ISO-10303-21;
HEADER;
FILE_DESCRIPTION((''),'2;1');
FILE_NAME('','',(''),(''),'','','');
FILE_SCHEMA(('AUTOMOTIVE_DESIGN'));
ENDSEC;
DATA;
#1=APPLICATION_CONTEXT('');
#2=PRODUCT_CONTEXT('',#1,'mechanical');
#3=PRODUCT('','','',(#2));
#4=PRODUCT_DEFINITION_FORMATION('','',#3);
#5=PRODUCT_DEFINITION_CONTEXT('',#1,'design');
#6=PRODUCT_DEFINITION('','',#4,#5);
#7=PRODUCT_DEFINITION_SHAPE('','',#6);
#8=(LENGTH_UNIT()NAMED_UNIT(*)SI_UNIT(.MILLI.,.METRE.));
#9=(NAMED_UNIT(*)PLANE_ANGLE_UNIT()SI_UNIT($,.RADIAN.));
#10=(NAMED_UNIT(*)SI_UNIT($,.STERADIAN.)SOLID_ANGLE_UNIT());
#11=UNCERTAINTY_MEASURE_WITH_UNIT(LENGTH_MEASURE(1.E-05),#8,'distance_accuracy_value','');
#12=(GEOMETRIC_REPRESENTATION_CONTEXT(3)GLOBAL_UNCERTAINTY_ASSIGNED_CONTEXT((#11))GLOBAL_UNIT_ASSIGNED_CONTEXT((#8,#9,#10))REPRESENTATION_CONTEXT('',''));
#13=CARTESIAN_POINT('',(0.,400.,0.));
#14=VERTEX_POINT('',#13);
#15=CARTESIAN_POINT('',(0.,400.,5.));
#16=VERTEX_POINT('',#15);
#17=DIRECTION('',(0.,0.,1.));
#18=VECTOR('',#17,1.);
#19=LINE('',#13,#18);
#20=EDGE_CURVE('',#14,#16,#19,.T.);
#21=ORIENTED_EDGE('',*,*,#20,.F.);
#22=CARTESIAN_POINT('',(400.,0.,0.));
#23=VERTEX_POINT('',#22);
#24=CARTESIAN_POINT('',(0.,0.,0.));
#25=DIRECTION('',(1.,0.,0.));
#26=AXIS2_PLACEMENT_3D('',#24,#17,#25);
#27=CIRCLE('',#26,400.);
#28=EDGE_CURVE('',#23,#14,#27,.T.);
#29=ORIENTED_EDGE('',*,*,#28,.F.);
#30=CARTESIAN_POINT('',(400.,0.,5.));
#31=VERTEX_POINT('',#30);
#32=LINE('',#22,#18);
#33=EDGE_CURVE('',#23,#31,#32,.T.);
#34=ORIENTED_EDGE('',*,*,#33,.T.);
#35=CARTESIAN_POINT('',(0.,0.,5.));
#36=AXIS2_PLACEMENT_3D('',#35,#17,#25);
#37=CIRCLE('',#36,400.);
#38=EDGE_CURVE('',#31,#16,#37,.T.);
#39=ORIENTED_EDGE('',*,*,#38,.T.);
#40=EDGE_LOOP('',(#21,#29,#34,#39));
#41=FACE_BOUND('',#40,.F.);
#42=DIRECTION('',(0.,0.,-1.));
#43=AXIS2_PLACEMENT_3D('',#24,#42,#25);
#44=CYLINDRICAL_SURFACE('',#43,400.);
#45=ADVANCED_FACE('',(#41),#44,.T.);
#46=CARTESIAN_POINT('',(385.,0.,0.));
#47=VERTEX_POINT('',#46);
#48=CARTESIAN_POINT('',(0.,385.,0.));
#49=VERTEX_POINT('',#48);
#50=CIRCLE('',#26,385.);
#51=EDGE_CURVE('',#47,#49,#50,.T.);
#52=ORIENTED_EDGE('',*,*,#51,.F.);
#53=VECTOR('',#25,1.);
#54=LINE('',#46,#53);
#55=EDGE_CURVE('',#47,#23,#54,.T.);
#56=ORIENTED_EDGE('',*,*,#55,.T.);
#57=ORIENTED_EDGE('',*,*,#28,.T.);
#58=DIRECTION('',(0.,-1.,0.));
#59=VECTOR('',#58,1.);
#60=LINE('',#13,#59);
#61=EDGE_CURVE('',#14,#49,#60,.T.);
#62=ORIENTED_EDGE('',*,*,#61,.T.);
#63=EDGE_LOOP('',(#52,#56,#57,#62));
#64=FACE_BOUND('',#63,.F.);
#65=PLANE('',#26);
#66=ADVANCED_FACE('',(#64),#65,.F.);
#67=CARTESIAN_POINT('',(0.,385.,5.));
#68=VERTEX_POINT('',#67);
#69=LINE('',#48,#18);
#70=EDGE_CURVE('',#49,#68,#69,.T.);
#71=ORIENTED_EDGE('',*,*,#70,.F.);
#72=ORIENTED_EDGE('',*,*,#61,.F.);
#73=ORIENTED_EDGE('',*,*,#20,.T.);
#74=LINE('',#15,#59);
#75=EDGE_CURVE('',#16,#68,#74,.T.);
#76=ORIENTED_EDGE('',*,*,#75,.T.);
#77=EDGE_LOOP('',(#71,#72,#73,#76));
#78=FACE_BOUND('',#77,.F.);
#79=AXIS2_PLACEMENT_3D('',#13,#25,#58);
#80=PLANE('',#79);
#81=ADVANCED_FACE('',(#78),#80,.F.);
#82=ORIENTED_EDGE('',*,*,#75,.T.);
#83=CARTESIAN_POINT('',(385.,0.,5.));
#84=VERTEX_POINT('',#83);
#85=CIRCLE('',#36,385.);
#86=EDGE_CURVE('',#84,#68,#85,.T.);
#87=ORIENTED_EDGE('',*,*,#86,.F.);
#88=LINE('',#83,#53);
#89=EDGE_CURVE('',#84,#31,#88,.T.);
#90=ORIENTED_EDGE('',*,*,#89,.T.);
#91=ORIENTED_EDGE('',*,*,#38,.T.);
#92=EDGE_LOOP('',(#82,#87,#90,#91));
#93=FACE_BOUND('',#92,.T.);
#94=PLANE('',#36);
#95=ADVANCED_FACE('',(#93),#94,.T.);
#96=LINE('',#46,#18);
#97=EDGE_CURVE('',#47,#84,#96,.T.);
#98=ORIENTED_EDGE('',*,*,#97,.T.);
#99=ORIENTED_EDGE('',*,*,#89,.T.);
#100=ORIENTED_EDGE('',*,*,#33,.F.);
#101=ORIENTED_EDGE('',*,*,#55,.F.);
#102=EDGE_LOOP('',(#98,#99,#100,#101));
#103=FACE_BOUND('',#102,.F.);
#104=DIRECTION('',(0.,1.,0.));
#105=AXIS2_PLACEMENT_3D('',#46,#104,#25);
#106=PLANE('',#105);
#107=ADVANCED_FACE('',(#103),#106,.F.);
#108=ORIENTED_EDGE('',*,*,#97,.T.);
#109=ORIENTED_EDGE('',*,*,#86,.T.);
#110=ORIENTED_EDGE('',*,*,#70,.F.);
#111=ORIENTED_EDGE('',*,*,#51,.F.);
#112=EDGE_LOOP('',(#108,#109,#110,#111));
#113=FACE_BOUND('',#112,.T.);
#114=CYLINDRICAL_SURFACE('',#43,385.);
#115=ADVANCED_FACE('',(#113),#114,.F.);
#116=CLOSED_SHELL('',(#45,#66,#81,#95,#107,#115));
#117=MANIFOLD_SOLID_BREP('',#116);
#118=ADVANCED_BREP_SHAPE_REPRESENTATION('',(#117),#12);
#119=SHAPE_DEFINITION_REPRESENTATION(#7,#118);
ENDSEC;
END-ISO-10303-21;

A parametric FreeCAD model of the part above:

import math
import FreeCAD as App
import Part
import Sketcher
from FreeCAD import Vector

doc = App.newDocument("Part")
body = doc.addObject("PartDesign::Body", "Body")

sketch1 = body.newObject("Sketcher::SketchObject", "Sketch")
sketch1.AttachmentSupport = (doc.getObject("XY_Plane"), [""])
sketch1.MapMode = "FlatFace"
sketch1.addGeometry(Part.LineSegment(Vector(385, 0, 0), Vector(400, 0, 0)), False)
sketch1.addGeometry(Part.ArcOfCircle(Part.Circle(Vector(0, 0, 0), Vector(0, 0, 1), 400), math.radians(0), math.radians(90)), False)
sketch1.addGeometry(Part.LineSegment(Vector(0, 400, 0), Vector(0, 385, 0)), False)
sketch1.addGeometry(Part.ArcOfCircle(Part.Circle(Vector(0, 0, 0), Vector(0, 0, 1), 385), math.radians(0), math.radians(90)), False)
sketch1.addConstraint(Sketcher.Constraint("Coincident", 0, 2, 1, 1))
sketch1.addConstraint(Sketcher.Constraint("Coincident", 1, 2, 2, 1))
sketch1.addConstraint(Sketcher.Constraint("Coincident", 2, 2, 3, 2))
sketch1.addConstraint(Sketcher.Constraint("Coincident", 3, 1, 0, 1))
sketch1.addConstraint(Sketcher.Constraint("Horizontal", 0))
sketch1.addConstraint(Sketcher.Constraint("Vertical", 2))
sketch1.addConstraint(Sketcher.Constraint("Coincident", 1, 3, -1, 1))
sketch1.addConstraint(Sketcher.Constraint("Coincident", 3, 3, -1, 1))
sketch1.addConstraint(Sketcher.Constraint("PointOnObject", 0, 2, -1))
sketch1.addConstraint(Sketcher.Constraint("PointOnObject", 2, 2, -2))
sketch1.addConstraint(Sketcher.Constraint("Radius", 1, 400.0))
sketch1.addConstraint(Sketcher.Constraint("Radius", 3, 385.0))
pad1 = body.newObject("PartDesign::Pad", "Pad")
pad1.Profile = sketch1
pad1.Length = 5

doc.recompute()
